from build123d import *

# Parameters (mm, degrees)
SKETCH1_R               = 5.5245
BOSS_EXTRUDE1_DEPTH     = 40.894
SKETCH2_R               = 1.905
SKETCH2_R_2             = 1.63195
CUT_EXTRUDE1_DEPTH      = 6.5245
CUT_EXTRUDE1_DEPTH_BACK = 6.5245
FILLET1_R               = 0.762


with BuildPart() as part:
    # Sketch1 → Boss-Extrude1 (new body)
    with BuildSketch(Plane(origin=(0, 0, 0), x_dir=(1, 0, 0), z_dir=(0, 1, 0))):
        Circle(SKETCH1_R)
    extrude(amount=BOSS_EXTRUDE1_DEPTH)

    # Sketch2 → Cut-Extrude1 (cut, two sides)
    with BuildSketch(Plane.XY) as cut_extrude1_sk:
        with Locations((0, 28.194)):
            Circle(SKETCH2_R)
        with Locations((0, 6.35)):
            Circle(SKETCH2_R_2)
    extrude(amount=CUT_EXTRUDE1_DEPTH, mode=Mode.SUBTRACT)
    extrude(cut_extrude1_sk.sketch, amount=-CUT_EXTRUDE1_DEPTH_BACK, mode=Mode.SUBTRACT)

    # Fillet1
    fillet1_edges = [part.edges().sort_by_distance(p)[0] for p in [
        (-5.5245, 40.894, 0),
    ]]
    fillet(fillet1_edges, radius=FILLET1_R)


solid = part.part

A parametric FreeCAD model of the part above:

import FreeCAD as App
import Part
import Sketcher
from FreeCAD import Vector
Q = App.Units.Quantity


def edges_at(feature, points):
    """Names of the edges that pass closest to the given points."""
    edges = feature.Shape.Edges
    near = lambda p: min(range(len(edges)), key=lambda i: edges[i].distToShape(Part.Vertex(*p))[0])
    return sorted({f"Edge{near(p) + 1}" for p in points})

doc = App.newDocument("Part")
body = doc.addObject("PartDesign::Body", "Body")

sketch1 = doc.addObject("Sketcher::SketchObject", "Sketch")
body.addObject(sketch1)
sketch1.AttachmentSupport = (doc.XZ_Plane, [""])
sketch1.MapMode = "FlatFace"
sketch1.addGeometry(Part.Circle(Vector(0, 0, 0), Vector(0, 0, 1), 5.5245), False)
sketch1.addConstraint([
    Sketcher.Constraint("Coincident", 0, 3, -1, 1),
    Sketcher.Constraint("Diameter", 0, Q("0.435 in")),
])
pad1 = doc.addObject("PartDesign::Pad", "Pad")
body.addObject(pad1)
pad1.Profile = sketch1
pad1.Length = Q("1.61 in")
pad1.Reversed = True

sketch2 = doc.addObject("Sketcher::SketchObject", "Sketch001")
body.addObject(sketch2)
sketch2.AttachmentSupport = (doc.XY_Plane, [""])
sketch2.MapMode = "FlatFace"
sketch2.addGeometry([
    Part.Circle(Vector(0, 28.194, 0), Vector(0, 0, 1), 1.905),
    Part.Circle(Vector(0, 6.35, 0), Vector(0, 0, 1), 1.63195),
], False)
sketch2.addConstraint([
    Sketcher.Constraint("PointOnObject", 0, 3, -2),
    Sketcher.Constraint("PointOnObject", 1, 3, -2),
    Sketcher.Constraint("Diameter", 0, Q("0.15 in")),
    Sketcher.Constraint("Diameter", 1, Q("0.1285 in")),
    Sketcher.Constraint("DistanceY", -1, 1, 0, 3, Q("1.11 in")),
    Sketcher.Constraint("DistanceY", -1, 1, 1, 3, Q("0.25 in")),
])
pocket1 = doc.addObject("PartDesign::Pocket", "Pocket")
body.addObject(pocket1)
pocket1.Profile = sketch2
pocket1.Type = "ThroughAll"
pocket1.Midplane = True
doc.recompute()

fillet = doc.addObject("PartDesign::Fillet", "Fillet")
body.addObject(fillet)
fillet.Base = (pocket1, edges_at(pocket1, [(-5.524, 40.894, 0)]))
fillet.Radius = Q("0.03 in")

doc.recompute()
